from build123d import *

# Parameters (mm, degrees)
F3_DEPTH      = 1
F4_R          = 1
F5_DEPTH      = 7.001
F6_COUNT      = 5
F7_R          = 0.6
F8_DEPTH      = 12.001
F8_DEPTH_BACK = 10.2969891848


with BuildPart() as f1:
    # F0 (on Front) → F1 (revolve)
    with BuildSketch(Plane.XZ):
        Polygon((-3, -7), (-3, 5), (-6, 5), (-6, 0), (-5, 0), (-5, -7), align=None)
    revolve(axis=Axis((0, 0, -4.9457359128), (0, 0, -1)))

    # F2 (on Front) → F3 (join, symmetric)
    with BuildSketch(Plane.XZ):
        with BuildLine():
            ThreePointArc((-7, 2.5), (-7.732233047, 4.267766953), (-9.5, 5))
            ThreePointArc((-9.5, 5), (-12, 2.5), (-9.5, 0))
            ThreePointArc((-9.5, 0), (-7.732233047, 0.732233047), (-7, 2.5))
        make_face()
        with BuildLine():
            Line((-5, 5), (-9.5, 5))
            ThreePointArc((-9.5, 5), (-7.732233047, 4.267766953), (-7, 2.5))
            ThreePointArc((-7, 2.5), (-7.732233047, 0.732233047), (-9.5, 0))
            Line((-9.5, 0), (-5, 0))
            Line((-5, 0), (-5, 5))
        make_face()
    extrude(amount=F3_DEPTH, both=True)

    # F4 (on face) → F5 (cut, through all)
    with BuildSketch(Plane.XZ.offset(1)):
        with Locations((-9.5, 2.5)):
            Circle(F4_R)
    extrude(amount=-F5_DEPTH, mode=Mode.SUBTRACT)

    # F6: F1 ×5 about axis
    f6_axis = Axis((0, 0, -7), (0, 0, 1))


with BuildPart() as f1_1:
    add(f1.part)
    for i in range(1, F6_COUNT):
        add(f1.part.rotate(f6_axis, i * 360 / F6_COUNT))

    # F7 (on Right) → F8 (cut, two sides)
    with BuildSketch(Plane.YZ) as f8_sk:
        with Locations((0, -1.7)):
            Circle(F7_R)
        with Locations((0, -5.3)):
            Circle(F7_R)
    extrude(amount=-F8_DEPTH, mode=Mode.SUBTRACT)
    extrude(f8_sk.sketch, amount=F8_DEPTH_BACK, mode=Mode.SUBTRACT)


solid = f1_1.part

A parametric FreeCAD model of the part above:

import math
import FreeCAD as App
import Part
import Sketcher
from FreeCAD import Vector

doc = App.newDocument("Part")
params = doc.addObject("Spreadsheet::Sheet", "Params")
for row, (alias, value) in enumerate([
    ("sketch1_width", "3 mm"),
    ("sketch1_width2", "1 mm"),
    ("sketch1_height", "12 mm"),
    ("sketch1_height2", "5 mm"),
    ("revolution_angle", "360 deg"),
    ("sketch2_radius", "2.5 mm"),
    ("sketch2_width", "4.5 mm"),
    ("pad1_length", "2 mm"),
    ("sketch3_diameter", "2 mm"),
    ("sketch4_diameter", "1.2 mm"),
], start=1):
    params.set(f"A{row}", alias)
    params.set(f"B{row}", "=" + value)
    params.setAlias(f"B{row}", alias)

body = doc.addObject("PartDesign::Body", "Body")

# Sketch on XZ plane
sketch1 = body.newObject("Sketcher::SketchObject", "Sketch")
sketch1.AttachmentSupport = (doc.getObject("XZ_Plane"), [""])
sketch1.MapMode = "FlatFace"
sketch1.addGeometry([
    Part.LineSegment(Vector(-3, -7, 0), Vector(-3, 5, 0)),  # 0
    Part.LineSegment(Vector(-3, 5, 0), Vector(-6, 5, 0)),  # 1
    Part.LineSegment(Vector(-6, 5, 0), Vector(-6, 0, 0)),  # 2
    Part.LineSegment(Vector(-6, 0, 0), Vector(-5, 0, 0)),  # 3
    Part.LineSegment(Vector(-5, 0, 0), Vector(-5, -7, 0)),  # 4
    Part.LineSegment(Vector(-5, -7, 0), Vector(-3, -7, 0)),  # 5
], False)
sketch1.addConstraint([
    Sketcher.Constraint("Coincident", 0, 2, 1, 1),
    Sketcher.Constraint("Coincident", 1, 2, 2, 1),
    Sketcher.Constraint("Coincident", 2, 2, 3, 1),
    Sketcher.Constraint("Coincident", 3, 2, 4, 1),
    Sketcher.Constraint("Coincident", 4, 2, 5, 1),
    Sketcher.Constraint("Coincident", 5, 2, 0, 1),
    Sketcher.Constraint("Vertical", 0),
    Sketcher.Constraint("Horizontal", 1),
    Sketcher.Constraint("Vertical", 2),
    Sketcher.Constraint("Horizontal", 3),
    Sketcher.Constraint("Vertical", 4),
    Sketcher.Constraint("Horizontal", 5),
    Sketcher.Constraint("PointOnObject", 2, 2, -1),
    Sketcher.Constraint("DistanceX", 1, 2, 1, 1, 3.0),
    Sketcher.Constraint("DistanceX", 3, 1, 3, 2, 1.0),
    Sketcher.Constraint("DistanceY", 0, 1, 0, 2, 12.0),
    Sketcher.Constraint("DistanceY", 2, 2, 2, 1, 5.0),
    Sketcher.Constraint("DistanceX", 0, 2, -1, 1, 3.0),
])
sketch1.setExpression("Constraints[13]", "Params.sketch1_width")
sketch1.setExpression("Constraints[14]", "Params.sketch1_width2")
sketch1.setExpression("Constraints[15]", "Params.sketch1_height")
sketch1.setExpression("Constraints[16]", "Params.sketch1_height2")
revolution = body.newObject("PartDesign::Revolution", "Revolution")
revolution.Profile = sketch1
revolution.ReferenceAxis = (sketch1, ["V_Axis"])
revolution.setExpression("Angle", "Params.revolution_angle")

# Sketch on XZ plane
sketch2 = body.newObject("Sketcher::SketchObject", "Sketch001")
sketch2.AttachmentSupport = (doc.getObject("XZ_Plane"), [""])
sketch2.MapMode = "FlatFace"
sketch2.addGeometry([
    Part.ArcOfCircle(Part.Circle(Vector(-9.5, 2.5, 0), Vector(0, 0, 1), 2.5), math.radians(90), math.radians(270)),
    Part.LineSegment(Vector(-9.5, 0, 0), Vector(-5, 0, 0)),
    Part.LineSegment(Vector(-5, 0, 0), Vector(-5, 5, 0)),
    Part.LineSegment(Vector(-5, 5, 0), Vector(-9.5, 5, 0)),
], False)
sketch2.addConstraint([
    Sketcher.Constraint("Tangent", 0, 2, 1, 1),
    Sketcher.Constraint("Coincident", 1, 2, 2, 1),
    Sketcher.Constraint("Coincident", 2, 2, 3, 1),
    Sketcher.Constraint("Tangent", 3, 2, 0, 1),
    Sketcher.Constraint("Horizontal", 1),
    Sketcher.Constraint("Vertical", 2),
    Sketcher.Constraint("Horizontal", 3),
    Sketcher.Constraint("PointOnObject", 0, 2, -1),
    Sketcher.Constraint("Radius", 0, 2.5),
    Sketcher.Constraint("DistanceX", 1, 1, 1, 2, 4.5),
    Sketcher.Constraint("DistanceX", 1, 2, -1, 1, 5.0),
])
sketch2.setExpression("Constraints[8]", "Params.sketch2_radius")
sketch2.setExpression("Constraints[9]", "Params.sketch2_width")
pad1 = body.newObject("PartDesign::Pad", "Pad")
pad1.Profile = sketch2
pad1.setExpression("Length", "Params.pad1_length")
pad1.Midplane = True

# Sketch on XZ plane
sketch3 = body.newObject("Sketcher::SketchObject", "Sketch002")
sketch3.AttachmentSupport = (doc.getObject("XZ_Plane"), [""])
sketch3.MapMode = "FlatFace"
sketch3.AttachmentOffset = App.Placement(Vector(0, 0, 1), App.Rotation())
sketch3.addGeometry(Part.Circle(Vector(-9.5, 2.5, 0), Vector(0, 0, 1), 1), False)
sketch3.addConstraint([
    Sketcher.Constraint("Diameter", 0, 2.0),
    Sketcher.Constraint("DistanceX", 0, 3, -1, 1, 9.5),
    Sketcher.Constraint("DistanceY", -1, 1, 0, 3, 2.5),
])
sketch3.setExpression("Constraints[0]", "Params.sketch3_diameter")
pocket1 = body.newObject("PartDesign::Pocket", "Pocket")
pocket1.Profile = sketch3
pocket1.Type = "ThroughAll"
body2 = doc.addObject("PartDesign::Body", "Body001")
doc.recompute()

body2.BaseFeature = body
doc.recompute()

body3 = doc.addObject("PartDesign::Body", "Body002")
body3.BaseFeature = body
body3.Placement = App.Placement(Vector(0, 0, 0), App.Rotation(Vector(0, 0, 1), 72))
boolean = body2.newObject("PartDesign::Boolean", "Boolean")
boolean.Type = "Fuse"
boolean.addObjects([body3])
doc.recompute()

body4 = doc.addObject("PartDesign::Body", "Body003")
body4.BaseFeature = body
body4.Placement = App.Placement(Vector(0, 0, 0), App.Rotation(Vector(0, 0, 1), 144))
boolean2 = body2.newObject("PartDesign::Boolean", "Boolean001")
boolean2.Type = "Fuse"
boolean2.addObjects([body4])
doc.recompute()

body5 = doc.addObject("PartDesign::Body", "Body004")
body5.BaseFeature = body
body5.Placement = App.Placement(Vector(0, 0, 0), App.Rotation(Vector(0, 0, 1), 216))
boolean3 = body2.newObject("PartDesign::Boolean", "Boolean002")
boolean3.Type = "Fuse"
boolean3.addObjects([body5])
doc.recompute()

body.Placement = App.Placement(Vector(0, 0, 0), App.Rotation(Vector(0, 0, 1), 288))
boolean4 = body2.newObject("PartDesign::Boolean", "Boolean003")
boolean4.Type = "Fuse"
boolean4.addObjects([body])

# Sketch on YZ plane
sketch4 = body2.newObject("Sketcher::SketchObject", "Sketch003")
sketch4.AttachmentSupport = (doc.getObject("YZ_Plane001"), [""])
sketch4.MapMode = "FlatFace"
sketch4.addGeometry([
    Part.Circle(Vector(0, -1.7, 0), Vector(0, 0, 1), 0.6),
    Part.Circle(Vector(0, -5.3, 0), Vector(0, 0, 1), 0.6),
], False)
sketch4.addConstraint([
    Sketcher.Constraint("Equal", 0, 1),
    Sketcher.Constraint("PointOnObject", 0, 3, -2),
    Sketcher.Constraint("PointOnObject", 1, 3, -2),
    Sketcher.Constraint("Diameter", 0, 1.2),
    Sketcher.Constraint("DistanceY", 0, 3, -1, 1, 1.7),
    Sketcher.Constraint("DistanceY", 1, 3, -1, 1, 5.3),
])
sketch4.setExpression("Constraints[3]", "Params.sketch4_diameter")
pocket2 = body2.newObject("PartDesign::Pocket", "Pocket001")
pocket2.Profile = sketch4
pocket2.Type = "ThroughAll"
pocket2.Midplane = True

doc.recompute()
